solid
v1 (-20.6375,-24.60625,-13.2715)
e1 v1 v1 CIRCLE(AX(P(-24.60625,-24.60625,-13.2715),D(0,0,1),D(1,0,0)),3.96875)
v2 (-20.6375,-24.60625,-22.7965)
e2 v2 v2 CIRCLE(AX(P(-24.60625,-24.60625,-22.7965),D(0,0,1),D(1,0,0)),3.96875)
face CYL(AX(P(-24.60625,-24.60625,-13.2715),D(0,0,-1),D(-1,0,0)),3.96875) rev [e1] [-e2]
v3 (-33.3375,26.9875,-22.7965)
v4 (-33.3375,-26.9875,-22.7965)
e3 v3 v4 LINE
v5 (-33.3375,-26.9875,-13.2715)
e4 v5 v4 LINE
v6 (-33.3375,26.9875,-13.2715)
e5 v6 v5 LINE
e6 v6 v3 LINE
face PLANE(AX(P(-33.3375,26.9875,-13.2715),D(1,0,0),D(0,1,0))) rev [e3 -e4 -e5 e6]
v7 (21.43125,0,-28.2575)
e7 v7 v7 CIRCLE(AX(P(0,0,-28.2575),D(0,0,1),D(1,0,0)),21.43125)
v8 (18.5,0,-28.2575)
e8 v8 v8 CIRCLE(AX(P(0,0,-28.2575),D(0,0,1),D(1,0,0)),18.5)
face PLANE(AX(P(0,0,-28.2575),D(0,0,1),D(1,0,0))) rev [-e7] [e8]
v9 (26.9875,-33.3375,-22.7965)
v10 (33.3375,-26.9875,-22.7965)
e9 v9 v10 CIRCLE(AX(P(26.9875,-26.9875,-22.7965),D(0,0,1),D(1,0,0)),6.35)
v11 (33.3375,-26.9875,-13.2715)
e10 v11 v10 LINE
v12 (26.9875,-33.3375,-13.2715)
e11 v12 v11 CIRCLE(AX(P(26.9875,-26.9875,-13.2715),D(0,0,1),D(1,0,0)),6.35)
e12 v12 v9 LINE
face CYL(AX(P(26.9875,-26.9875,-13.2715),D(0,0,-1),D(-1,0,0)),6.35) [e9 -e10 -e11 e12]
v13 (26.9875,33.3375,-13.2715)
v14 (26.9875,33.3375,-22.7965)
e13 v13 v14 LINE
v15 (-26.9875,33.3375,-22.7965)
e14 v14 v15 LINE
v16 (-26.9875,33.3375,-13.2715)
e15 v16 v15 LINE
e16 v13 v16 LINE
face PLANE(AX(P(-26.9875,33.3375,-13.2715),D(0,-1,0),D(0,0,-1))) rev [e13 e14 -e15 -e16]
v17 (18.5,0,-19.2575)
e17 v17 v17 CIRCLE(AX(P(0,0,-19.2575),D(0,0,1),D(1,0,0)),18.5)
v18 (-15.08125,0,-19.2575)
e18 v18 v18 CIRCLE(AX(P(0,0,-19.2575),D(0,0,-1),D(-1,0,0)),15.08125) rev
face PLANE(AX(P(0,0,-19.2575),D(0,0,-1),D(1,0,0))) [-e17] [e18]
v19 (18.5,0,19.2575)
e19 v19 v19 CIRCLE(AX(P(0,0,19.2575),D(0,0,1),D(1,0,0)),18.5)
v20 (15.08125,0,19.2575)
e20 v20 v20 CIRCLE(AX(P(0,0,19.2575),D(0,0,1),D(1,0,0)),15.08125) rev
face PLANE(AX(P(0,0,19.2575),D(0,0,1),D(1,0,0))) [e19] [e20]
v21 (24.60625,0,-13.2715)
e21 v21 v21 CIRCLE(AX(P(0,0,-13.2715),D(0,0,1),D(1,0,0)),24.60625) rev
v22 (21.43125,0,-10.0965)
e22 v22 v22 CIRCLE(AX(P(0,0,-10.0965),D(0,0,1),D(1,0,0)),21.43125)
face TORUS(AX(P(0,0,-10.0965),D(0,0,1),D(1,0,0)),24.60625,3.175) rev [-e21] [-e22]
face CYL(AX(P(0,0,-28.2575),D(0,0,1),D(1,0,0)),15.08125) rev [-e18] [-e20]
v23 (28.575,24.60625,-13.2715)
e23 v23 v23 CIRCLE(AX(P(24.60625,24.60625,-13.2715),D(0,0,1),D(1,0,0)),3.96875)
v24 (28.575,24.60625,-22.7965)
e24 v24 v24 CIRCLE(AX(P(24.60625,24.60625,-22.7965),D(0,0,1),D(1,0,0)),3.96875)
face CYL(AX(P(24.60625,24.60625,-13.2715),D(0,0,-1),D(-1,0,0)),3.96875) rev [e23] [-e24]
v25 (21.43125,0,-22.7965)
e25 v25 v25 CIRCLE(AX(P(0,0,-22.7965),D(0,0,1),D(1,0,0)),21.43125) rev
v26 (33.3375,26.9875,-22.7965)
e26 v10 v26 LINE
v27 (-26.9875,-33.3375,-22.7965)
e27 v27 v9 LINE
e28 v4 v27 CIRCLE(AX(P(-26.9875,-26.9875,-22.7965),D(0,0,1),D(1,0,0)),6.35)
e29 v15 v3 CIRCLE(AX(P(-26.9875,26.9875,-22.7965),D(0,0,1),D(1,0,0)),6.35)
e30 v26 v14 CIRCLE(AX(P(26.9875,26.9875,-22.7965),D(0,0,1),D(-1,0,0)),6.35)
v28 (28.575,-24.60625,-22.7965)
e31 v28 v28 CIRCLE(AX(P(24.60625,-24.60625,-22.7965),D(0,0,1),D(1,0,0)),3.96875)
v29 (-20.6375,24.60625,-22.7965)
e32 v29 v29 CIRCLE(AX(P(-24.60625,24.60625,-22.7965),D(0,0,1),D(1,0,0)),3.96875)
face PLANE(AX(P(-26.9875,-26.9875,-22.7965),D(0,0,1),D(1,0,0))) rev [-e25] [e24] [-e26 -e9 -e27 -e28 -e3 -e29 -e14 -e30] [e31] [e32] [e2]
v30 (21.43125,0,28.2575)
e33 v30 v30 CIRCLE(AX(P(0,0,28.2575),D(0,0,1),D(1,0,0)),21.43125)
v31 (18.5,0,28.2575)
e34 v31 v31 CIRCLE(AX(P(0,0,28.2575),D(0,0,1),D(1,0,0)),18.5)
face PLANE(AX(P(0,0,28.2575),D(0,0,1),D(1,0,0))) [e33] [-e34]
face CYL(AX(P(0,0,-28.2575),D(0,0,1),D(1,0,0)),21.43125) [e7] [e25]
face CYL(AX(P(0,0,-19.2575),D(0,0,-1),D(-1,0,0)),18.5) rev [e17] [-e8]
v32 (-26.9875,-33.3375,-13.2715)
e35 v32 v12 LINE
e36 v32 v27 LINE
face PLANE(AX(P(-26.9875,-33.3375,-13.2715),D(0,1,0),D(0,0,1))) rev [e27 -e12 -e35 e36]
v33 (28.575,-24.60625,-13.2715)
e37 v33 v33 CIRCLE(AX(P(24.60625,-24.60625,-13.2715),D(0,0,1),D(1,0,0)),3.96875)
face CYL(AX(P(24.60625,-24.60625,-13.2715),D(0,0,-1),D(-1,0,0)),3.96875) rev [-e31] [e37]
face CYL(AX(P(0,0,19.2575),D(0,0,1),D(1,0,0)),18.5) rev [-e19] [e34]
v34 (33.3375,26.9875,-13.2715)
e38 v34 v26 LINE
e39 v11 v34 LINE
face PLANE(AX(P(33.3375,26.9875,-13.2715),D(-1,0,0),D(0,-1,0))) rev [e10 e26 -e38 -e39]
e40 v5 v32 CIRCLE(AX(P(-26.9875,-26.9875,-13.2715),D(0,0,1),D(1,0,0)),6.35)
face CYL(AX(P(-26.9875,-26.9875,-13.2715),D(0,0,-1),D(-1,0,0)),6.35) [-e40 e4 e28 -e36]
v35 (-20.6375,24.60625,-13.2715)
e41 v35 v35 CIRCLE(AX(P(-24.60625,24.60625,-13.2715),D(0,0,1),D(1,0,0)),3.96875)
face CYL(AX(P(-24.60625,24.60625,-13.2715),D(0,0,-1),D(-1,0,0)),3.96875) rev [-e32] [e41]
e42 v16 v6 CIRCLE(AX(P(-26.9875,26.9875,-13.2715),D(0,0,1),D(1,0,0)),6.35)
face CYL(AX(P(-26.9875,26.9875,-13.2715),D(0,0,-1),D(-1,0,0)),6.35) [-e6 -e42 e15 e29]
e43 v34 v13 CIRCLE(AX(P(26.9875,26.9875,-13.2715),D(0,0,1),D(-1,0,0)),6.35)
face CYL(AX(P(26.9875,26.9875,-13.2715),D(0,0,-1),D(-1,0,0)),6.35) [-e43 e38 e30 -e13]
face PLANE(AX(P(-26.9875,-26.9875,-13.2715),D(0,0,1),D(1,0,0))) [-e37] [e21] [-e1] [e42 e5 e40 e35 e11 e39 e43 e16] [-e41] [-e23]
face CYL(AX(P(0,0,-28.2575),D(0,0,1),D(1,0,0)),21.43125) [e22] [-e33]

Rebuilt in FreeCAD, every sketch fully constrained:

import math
import FreeCAD as App
import Part
import Sketcher

V = App.Vector
Q = App.Units.Quantity


def edges_at(feature, points):
    """Names of the edges that pass closest to the given points."""
    edges = feature.Shape.Edges
    near = lambda p: min(range(len(edges)), key=lambda i: edges[i].distToShape(Part.Vertex(*p))[0])
    return sorted({f"Edge{near(p) + 1}" for p in points})

doc = App.newDocument("Part")
body = doc.addObject("PartDesign::Body", "Body")

# Sketch on XY plane
sketch1 = doc.addObject("Sketcher::SketchObject", "Sketch")
body.addObject(sketch1)
sketch1.AttachmentSupport = (doc.XY_Plane, [""])
sketch1.MapMode = "FlatFace"
sketch1.addGeometry(Part.Circle(V(0, 0, 0), V(0, 0, 1), 21), False)
sketch1.addGeometry(Part.Circle(V(0, 0, 0), V(0, 0, 1), 15), False)
sketch1.addConstraint(Sketcher.Constraint("Coincident", 0, 3, -1, 1))
sketch1.addConstraint(Sketcher.Constraint("Coincident", 1, 3, -1, 1))
sketch1.addConstraint(Sketcher.Constraint("Diameter", 0, Q("1.6875 in")))
sketch1.addConstraint(Sketcher.Constraint("Diameter", 1, Q("1.1875 in")))
pad1 = doc.addObject("PartDesign::Pad", "Pad")
body.addObject(pad1)
pad1.Profile = sketch1
pad1.Type = "TwoLengths"
pad1.Length = Q("1.1125 in")
pad1.Length2 = Q("1.1125 in")

# Sketch on XY plane
sketch2 = doc.addObject("Sketcher::SketchObject", "Sketch001")
body.addObject(sketch2)
sketch2.AttachmentSupport = (doc.XY_Plane, [""])
sketch2.MapMode = "FlatFace"
sketch2.AttachmentOffset = App.Placement(V(0, 0, -0.8975 * 25.4), App.Rotation())
sketch2.addGeometry(Part.LineSegment(V(27, 33.3, 0), V(-27, 33.3, 0)), False)
sketch2.addGeometry(Part.ArcOfCircle(Part.Circle(V(-27, 27, 0), V(0, 0, 1), 6.3), math.radians(90), math.radians(180)), False)
sketch2.addGeometry(Part.LineSegment(V(-33.3, 27, 0), V(-33.3, -27, 0)), False)
sketch2.addGeometry(Part.ArcOfCircle(Part.Circle(V(-27, -27, 0), V(0, 0, 1), 6.3), math.radians(180), math.radians(270)), False)
sketch2.addGeometry(Part.LineSegment(V(-27, -33.3, 0), V(27, -33.3, 0)), False)
sketch2.addGeometry(Part.ArcOfCircle(Part.Circle(V(27, -27, 0), V(0, 0, 1), 6.3), math.radians(-90), math.radians(0)), False)
sketch2.addGeometry(Part.LineSegment(V(33.3, -27, 0), V(33.3, 27, 0)), False)
sketch2.addGeometry(Part.ArcOfCircle(Part.Circle(V(27, 27, 0), V(0, 0, 1), 6.3), math.radians(0), math.radians(90)), False)
sketch2.addGeometry(Part.Circle(V(24.6, -24.6, 0), V(0, 0, 1), 4), False)
sketch2.addGeometry(Part.Circle(V(-24.6, -24.6, 0), V(0, 0, 1), 4), False)
sketch2.addGeometry(Part.Circle(V(24.6, 24.6, 0), V(0, 0, 1), 4), False)
sketch2.addGeometry(Part.Circle(V(0, 0, 0), V(0, 0, 1), 20.6), False)
sketch2.addGeometry(Part.Circle(V(-24.6, 24.6, 0), V(0, 0, 1), 4), False)
sketch2.addConstraint(Sketcher.Constraint("Tangent", 0, 2, 1, 1))
sketch2.addConstraint(Sketcher.Constraint("Tangent", 1, 2, 2, 1))
sketch2.addConstraint(Sketcher.Constraint("Tangent", 2, 2, 3, 1))
sketch2.addConstraint(Sketcher.Constraint("Tangent", 3, 2, 4, 1))
sketch2.addConstraint(Sketcher.Constraint("Tangent", 4, 2, 5, 1))
sketch2.addConstraint(Sketcher.Constraint("Tangent", 5, 2, 6, 1))
sketch2.addConstraint(Sketcher.Constraint("Tangent", 6, 2, 7, 1))
sketch2.addConstraint(Sketcher.Constraint("Tangent", 7, 2, 0, 1))
sketch2.addConstraint(Sketcher.Constraint("Horizontal", 0))
sketch2.addConstraint(Sketcher.Constraint("Vertical", 2))
sketch2.addConstraint(Sketcher.Constraint("Horizontal", 4))
sketch2.addConstraint(Sketcher.Constraint("Vertical", 6))
sketch2.addConstraint(Sketcher.Constraint("Coincident", 11, 3, -1, 1))
sketch2.addConstraint(Sketcher.Constraint("Equal", 1, 3))
sketch2.addConstraint(Sketcher.Constraint("Equal", 3, 5))
sketch2.addConstraint(Sketcher.Constraint("Equal", 5, 7))
sketch2.addConstraint(Sketcher.Constraint("Equal", 8, 9))
sketch2.addConstraint(Sketcher.Constraint("Equal", 9, 10))
sketch2.addConstraint(Sketcher.Constraint("Equal", 10, 12))
sketch2.addConstraint(Sketcher.Constraint("Symmetric", 1, 3, 5, 3, -1, 1))
sketch2.addConstraint(Sketcher.Constraint("Symmetric", 9, 3, 10, 3, -1, 1))
sketch2.addConstraint(Sketcher.Constraint("Symmetric", 8, 3, 12, 3, -1, 1))
sketch2.addConstraint(Sketcher.Constraint("Symmetric", 8, 3, 9, 3, -2))
sketch2.addConstraint(Sketcher.Constraint("Equal", 4, 2))
sketch2.addConstraint(Sketcher.Constraint("Radius", 1, Q("0.25 in")))
sketch2.addConstraint(Sketcher.Constraint("Diameter", 8, Q("0.3125 in")))
sketch2.addConstraint(Sketcher.Constraint("Diameter", 11, Q("1.625 in")))
sketch2.addConstraint(Sketcher.Constraint("DistanceX", 0, 2, 0, 1, Q("2.125 in")))
sketch2.addConstraint(Sketcher.Constraint("DistanceX", -1, 1, 8, 3, Q("0.96875 in")))
sketch2.addConstraint(Sketcher.Constraint("DistanceY", 8, 3, -1, 1, Q("0.96875 in")))
pad2 = doc.addObject("PartDesign::Pad", "Pad001")
body.addObject(pad2)
pad2.Profile = sketch2
pad2.Length = Q("0.375 in")

# Sketch on XY plane
sketch3 = doc.addObject("Sketcher::SketchObject", "Sketch002")
body.addObject(sketch3)
sketch3.AttachmentSupport = (doc.XY_Plane, [""])
sketch3.MapMode = "FlatFace"
sketch3.AttachmentOffset = App.Placement(V(0, 0, 1.1125 * 25.4), App.Rotation())
sketch3.addGeometry(Part.Circle(V(0, 0, 0), V(0, 0, 1), 18), False)
sketch3.addConstraint(Sketcher.Constraint("Coincident", 0, 3, -1, 1))
sketch3.addConstraint(Sketcher.Constraint("Diameter", 0, Q("37 mm")))
pocket1 = doc.addObject("PartDesign::Pocket", "Pocket")
body.addObject(pocket1)
pocket1.Profile = sketch3
pocket1.Length = 9
doc.recompute()

mirrored = doc.addObject("PartDesign::Mirrored", "Mirrored")
body.addObject(mirrored)
mirrored.Originals = [pocket1]
mirrored.MirrorPlane = (doc.XY_Plane, [""])
body.Tip = mirrored
doc.recompute()

fillet = doc.addObject("PartDesign::Fillet", "Fillet")
body.addObject(fillet)
fillet.Base = (mirrored, edges_at(mirrored, [(-21.431, 0, -13.271)]))
fillet.Radius = Q("0.125 in")

doc.recompute()
